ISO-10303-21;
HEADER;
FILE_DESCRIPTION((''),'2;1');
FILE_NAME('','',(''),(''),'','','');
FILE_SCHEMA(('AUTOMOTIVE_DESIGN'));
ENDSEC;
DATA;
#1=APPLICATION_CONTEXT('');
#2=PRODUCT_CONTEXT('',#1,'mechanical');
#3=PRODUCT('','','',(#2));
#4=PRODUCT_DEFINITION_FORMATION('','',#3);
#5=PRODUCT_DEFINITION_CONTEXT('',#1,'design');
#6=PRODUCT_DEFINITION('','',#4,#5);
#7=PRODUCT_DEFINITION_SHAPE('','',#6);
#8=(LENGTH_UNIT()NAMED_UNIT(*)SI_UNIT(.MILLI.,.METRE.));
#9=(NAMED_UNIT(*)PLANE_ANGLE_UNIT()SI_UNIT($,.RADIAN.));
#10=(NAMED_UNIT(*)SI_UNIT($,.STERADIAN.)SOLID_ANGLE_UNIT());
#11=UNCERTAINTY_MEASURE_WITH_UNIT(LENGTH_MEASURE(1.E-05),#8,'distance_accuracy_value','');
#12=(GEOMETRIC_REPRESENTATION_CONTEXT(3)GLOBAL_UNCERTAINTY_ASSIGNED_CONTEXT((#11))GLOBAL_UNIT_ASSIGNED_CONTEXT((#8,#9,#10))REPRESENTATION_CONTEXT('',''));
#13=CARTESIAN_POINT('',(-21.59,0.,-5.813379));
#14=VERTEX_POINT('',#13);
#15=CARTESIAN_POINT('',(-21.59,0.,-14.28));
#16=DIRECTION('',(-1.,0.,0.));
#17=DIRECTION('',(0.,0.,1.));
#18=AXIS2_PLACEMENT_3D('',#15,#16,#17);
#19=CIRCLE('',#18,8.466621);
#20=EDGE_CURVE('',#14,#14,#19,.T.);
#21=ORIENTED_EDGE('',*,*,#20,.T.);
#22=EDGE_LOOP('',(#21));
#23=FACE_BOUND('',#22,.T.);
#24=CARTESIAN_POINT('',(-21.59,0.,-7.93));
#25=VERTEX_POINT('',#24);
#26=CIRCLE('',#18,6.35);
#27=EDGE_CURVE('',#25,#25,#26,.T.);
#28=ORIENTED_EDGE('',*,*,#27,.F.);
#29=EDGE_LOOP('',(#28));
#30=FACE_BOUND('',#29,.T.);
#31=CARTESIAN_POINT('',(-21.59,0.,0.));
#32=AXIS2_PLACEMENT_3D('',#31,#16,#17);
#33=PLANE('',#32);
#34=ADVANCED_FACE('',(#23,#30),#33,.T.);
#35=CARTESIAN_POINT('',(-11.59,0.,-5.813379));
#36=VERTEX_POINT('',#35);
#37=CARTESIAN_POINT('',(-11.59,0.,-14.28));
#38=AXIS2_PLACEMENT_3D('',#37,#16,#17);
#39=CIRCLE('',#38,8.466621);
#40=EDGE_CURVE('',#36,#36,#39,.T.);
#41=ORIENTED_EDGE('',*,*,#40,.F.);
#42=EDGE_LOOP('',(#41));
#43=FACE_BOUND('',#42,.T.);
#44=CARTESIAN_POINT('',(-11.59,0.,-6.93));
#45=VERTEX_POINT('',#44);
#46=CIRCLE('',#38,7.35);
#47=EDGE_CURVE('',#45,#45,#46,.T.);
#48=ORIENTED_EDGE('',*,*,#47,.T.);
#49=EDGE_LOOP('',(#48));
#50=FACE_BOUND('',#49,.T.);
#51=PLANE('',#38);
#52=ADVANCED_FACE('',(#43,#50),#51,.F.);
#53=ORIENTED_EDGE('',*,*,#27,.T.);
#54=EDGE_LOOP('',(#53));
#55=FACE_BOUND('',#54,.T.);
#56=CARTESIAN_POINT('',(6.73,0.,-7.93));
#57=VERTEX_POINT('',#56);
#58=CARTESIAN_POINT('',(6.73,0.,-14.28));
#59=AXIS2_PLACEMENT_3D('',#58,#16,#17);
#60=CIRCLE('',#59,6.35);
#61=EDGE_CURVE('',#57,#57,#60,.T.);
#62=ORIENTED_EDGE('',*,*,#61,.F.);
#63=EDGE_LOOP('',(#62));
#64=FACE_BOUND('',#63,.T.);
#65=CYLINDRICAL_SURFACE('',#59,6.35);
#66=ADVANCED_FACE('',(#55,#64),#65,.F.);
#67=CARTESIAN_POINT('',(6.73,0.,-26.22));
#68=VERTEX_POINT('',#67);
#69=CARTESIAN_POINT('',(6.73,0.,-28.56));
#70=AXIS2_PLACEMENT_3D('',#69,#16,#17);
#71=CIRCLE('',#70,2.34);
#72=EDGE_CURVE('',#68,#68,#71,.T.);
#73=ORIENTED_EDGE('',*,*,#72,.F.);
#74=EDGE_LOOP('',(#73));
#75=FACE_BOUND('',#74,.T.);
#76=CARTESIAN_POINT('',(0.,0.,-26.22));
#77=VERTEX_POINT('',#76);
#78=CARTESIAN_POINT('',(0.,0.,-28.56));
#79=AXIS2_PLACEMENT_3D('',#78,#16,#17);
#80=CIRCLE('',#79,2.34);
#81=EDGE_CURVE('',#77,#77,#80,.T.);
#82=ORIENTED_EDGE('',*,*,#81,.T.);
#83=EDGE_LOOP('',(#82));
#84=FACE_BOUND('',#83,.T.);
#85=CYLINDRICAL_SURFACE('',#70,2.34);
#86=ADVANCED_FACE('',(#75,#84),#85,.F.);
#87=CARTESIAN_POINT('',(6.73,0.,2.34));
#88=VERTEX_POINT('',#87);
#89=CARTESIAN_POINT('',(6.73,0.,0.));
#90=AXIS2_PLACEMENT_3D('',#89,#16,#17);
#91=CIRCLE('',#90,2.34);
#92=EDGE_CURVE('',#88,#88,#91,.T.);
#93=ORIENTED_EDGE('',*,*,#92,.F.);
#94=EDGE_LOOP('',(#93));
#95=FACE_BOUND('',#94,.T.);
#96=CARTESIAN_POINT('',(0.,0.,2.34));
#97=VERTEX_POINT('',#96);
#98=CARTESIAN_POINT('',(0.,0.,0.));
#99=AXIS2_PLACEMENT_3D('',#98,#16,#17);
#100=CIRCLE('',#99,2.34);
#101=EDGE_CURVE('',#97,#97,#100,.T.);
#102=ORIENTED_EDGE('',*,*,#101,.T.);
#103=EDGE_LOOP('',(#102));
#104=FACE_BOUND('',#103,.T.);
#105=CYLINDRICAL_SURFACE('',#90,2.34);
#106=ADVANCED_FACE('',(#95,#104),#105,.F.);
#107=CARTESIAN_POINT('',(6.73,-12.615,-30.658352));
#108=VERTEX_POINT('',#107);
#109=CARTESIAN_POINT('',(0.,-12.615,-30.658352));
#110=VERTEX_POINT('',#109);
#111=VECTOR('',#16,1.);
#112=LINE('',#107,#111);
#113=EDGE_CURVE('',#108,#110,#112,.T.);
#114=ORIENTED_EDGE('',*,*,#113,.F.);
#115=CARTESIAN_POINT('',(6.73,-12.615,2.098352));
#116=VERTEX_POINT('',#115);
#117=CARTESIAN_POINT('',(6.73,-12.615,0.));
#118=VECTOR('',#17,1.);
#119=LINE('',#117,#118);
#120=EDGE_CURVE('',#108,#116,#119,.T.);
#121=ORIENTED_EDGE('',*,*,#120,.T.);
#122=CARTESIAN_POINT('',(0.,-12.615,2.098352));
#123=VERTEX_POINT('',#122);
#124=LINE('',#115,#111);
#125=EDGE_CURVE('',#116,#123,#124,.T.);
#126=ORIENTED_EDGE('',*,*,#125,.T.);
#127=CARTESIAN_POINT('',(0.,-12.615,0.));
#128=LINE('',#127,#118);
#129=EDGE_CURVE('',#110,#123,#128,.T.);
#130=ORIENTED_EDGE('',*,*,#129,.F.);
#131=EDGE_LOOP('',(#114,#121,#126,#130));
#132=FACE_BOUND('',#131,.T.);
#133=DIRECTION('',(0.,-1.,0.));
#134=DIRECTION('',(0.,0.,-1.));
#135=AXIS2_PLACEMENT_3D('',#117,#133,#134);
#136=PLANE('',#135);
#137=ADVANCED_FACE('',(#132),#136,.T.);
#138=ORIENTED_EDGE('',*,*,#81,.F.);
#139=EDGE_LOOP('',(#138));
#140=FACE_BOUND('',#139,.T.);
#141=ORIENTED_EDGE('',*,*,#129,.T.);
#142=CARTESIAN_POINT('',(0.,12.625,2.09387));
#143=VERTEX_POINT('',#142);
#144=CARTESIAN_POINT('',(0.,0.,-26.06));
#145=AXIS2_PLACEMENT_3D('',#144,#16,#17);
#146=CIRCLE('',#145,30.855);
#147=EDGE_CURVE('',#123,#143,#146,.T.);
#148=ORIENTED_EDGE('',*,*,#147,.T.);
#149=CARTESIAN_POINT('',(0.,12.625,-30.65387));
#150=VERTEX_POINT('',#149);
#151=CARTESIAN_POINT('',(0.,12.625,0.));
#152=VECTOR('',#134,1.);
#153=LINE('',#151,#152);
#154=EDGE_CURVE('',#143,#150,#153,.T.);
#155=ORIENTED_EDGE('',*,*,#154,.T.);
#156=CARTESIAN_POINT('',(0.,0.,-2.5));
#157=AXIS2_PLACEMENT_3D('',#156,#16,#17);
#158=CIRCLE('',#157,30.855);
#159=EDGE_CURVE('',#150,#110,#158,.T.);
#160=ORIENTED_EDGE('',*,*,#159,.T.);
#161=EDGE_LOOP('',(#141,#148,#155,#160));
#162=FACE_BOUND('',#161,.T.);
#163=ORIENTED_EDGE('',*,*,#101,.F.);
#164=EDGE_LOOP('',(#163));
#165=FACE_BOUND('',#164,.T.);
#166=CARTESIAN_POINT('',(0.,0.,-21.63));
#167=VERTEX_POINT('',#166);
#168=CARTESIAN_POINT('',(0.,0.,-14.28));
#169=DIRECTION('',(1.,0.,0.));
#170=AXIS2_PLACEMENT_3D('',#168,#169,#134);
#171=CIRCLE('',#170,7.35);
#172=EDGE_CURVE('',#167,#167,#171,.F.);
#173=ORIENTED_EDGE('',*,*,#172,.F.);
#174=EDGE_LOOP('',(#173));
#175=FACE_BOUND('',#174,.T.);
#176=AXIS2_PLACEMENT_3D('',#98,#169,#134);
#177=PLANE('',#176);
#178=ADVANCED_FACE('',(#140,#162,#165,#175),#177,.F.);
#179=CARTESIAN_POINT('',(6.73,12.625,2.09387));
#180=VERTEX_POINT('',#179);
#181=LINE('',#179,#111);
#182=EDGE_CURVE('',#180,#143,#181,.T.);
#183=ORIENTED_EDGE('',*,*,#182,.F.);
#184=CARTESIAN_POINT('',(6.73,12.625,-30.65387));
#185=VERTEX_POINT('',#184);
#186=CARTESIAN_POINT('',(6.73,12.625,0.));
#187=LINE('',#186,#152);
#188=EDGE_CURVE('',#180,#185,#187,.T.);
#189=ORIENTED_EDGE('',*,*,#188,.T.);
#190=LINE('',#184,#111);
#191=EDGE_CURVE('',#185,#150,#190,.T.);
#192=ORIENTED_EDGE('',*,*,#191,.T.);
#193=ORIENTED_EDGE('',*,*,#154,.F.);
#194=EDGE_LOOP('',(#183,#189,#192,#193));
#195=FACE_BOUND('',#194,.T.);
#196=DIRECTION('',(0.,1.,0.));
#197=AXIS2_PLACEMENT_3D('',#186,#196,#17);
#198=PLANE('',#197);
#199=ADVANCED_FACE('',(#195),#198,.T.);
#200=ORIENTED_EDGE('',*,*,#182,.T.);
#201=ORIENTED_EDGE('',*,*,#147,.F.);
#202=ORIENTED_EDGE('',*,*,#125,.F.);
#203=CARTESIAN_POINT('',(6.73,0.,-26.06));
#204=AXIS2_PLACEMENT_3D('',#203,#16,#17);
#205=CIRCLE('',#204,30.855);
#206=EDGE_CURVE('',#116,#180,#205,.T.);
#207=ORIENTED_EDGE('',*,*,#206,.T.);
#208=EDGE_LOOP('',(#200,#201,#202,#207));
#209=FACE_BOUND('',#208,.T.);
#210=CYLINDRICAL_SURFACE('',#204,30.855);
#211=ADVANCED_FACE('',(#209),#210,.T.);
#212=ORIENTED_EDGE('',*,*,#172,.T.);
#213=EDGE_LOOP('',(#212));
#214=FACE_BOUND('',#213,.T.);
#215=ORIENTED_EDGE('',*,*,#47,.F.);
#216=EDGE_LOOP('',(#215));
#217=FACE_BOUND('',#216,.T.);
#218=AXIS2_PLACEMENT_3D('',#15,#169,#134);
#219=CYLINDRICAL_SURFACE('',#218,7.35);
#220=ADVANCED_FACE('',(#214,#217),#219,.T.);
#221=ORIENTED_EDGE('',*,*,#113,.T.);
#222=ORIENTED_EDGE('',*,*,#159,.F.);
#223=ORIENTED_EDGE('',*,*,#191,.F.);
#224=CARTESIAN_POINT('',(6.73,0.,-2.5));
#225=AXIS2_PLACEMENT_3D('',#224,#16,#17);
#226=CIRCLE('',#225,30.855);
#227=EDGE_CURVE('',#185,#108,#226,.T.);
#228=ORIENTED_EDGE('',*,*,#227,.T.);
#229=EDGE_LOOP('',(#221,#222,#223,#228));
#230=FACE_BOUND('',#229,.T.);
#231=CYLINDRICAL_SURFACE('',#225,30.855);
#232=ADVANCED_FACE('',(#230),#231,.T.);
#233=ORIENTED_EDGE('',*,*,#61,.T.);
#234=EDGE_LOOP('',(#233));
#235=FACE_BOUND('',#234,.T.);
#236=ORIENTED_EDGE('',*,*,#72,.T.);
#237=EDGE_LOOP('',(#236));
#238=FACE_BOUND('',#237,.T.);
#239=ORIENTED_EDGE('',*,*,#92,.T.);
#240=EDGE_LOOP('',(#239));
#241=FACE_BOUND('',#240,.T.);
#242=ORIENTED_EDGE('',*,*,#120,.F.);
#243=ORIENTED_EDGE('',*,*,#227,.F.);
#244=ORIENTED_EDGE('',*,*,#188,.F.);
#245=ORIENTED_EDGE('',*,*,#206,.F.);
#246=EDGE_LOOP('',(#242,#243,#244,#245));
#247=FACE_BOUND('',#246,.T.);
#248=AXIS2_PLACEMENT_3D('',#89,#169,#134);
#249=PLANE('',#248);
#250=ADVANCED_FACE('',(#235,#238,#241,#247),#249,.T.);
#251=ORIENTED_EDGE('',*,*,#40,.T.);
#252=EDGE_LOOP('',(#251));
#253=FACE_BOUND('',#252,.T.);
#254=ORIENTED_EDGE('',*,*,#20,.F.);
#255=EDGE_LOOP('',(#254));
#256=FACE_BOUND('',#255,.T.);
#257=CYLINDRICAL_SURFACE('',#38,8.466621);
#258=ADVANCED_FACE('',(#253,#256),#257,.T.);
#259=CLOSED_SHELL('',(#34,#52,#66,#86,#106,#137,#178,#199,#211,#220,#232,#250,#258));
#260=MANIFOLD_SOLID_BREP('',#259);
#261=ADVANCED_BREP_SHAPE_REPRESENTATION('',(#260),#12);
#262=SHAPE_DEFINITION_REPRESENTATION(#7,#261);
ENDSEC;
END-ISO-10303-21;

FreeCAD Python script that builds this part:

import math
import FreeCAD as App
import Part
import Sketcher
from FreeCAD import Vector
Q = App.Units.Quantity


def add_polygon(sketch, points):
    """Adds a closed chain of lines whose ends are joined by coincident constraints."""
    first, n = sketch.GeometryCount, len(points)
    for a, b in zip(points, points[1:] + points[:1]):
        sketch.addGeometry(Part.LineSegment(App.Vector(*a, 0), App.Vector(*b, 0)), False)
    for i in range(n):
        sketch.addConstraint(Sketcher.Constraint("Coincident", first + i, 2, first + (i + 1) % n, 1))

doc = App.newDocument("Part")
params = doc.addObject("Spreadsheet::Sheet", "Params")
for row, (alias, value) in enumerate([
    ("sketch1_diameter", "5 mm"),
    ("sketch1_width", "25.24 mm"),
    ("sketch1_height", "38.15 mm"),
    ("pad1_length", "6.73 mm"),
    ("pocket1_length", "6.73 mm"),
    ("sketch3_diameter", "14.7 mm"),
    ("pad2_length", "21.59 mm"),
    ("sketch4_diameter", "12.7 mm"),
    ("sketch5_diameter", "14.7 mm"),
    ("pad3_length", "10 mm"),
    ("sketch6_diameter", "5 mm"),
    ("sketch6_diameter2", "4.68 mm"),
    ("pad4_length", "6.73 mm"),
], start=1):
    params.set(f"A{row}", alias)
    params.set(f"B{row}", "=" + value)
    params.setAlias(f"B{row}", alias)

body = doc.addObject("PartDesign::Body", "Body")

# Sketch on YZ plane
sketch1 = body.newObject("Sketcher::SketchObject", "Sketch")
sketch1.AttachmentSupport = (doc.getObject("YZ_Plane"), [""])
sketch1.MapMode = "FlatFace"
add_polygon(sketch1, [(-12.6, 4.8), (-12.6, -33.4), (12.6, -33.4), (12.6, 4.8)])  # lines 0-3
sketch1.addGeometry(Part.Circle(Vector(0, 0, 0), Vector(0, 0, 1), 2.5), False)  # 4
sketch1.addGeometry(Part.Circle(Vector(0, -28.6, 0), Vector(0, 0, 1), 2.5), False)  # 5
sketch1.addConstraint([
    Sketcher.Constraint("Vertical", 0),
    Sketcher.Constraint("Horizontal", 1),
    Sketcher.Constraint("Vertical", 2),
    Sketcher.Constraint("Horizontal", 3),
    Sketcher.Constraint("Coincident", 4, 3, -1, 1),
    Sketcher.Constraint("Equal", 4, 5),
    Sketcher.Constraint("PointOnObject", 5, 3, -2),
    Sketcher.Constraint("Diameter", 4, Q("5 mm")),
    Sketcher.Constraint("DistanceX", 1, 1, 1, 2, Q("25.24 mm")),
    Sketcher.Constraint("DistanceY", 0, 2, 0, 1, Q("38.15 mm")),
    Sketcher.Constraint("DistanceY", 5, 3, -1, 1, Q("28.56 mm")),
    Sketcher.Constraint("DistanceX", 0, 2, -1, 1, Q("12.615 mm")),
    Sketcher.Constraint("DistanceY", 0, 2, -1, 1, Q("33.355 mm")),
])
sketch1.setExpression("Constraints[11]", "Params.sketch1_diameter")
sketch1.setExpression("Constraints[12]", "Params.sketch1_width")
sketch1.setExpression("Constraints[13]", "Params.sketch1_height")
pad1 = body.newObject("PartDesign::Pad", "Pad")
pad1.Profile = sketch1
pad1.setExpression("Length", "Params.pad1_length")

# Sketch on YZ plane
sketch2 = body.newObject("Sketcher::SketchObject", "Sketch001")
sketch2.AttachmentSupport = (doc.getObject("YZ_Plane"), [""])
sketch2.MapMode = "FlatFace"
sketch2.addGeometry([
    Part.LineSegment(Vector(-12.6, 4.8, 0), Vector(0, 4.8, 0)),  # 0
    Part.ArcOfCircle(Part.Circle(Vector(0, -26.1, 0), Vector(0, 0, 1), 30.9), math.radians(90), math.radians(114)),  # 1
    Part.LineSegment(Vector(-12.6, 2.1, 0), Vector(-12.6, 4.8, 0)),  # 2
    Part.LineSegment(Vector(12.6, 4.8, 0), Vector(12.6, 2.1, 0)),  # 3
    Part.ArcOfCircle(Part.Circle(Vector(0, -26.1, 0), Vector(0, 0, 1), 30.9), math.radians(66), math.radians(90)),  # 4
    Part.LineSegment(Vector(0, 4.8, 0), Vector(12.6, 4.8, 0)),  # 5
    Part.ArcOfCircle(Part.Circle(Vector(0, -2.5, 0), Vector(0, 0, 1), 30.9), math.radians(-90), math.radians(-66)),  # 6
    Part.LineSegment(Vector(12.6, -30.7, 0), Vector(12.6, -33.4, 0)),  # 7
    Part.LineSegment(Vector(12.6, -33.4, 0), Vector(0, -33.4, 0)),  # 8
    Part.ArcOfCircle(Part.Circle(Vector(0, -2.5, 0), Vector(0, 0, 1), 30.9), math.radians(-114), math.radians(-90)),  # 9
    Part.LineSegment(Vector(0, -33.4, 0), Vector(-12.6, -33.4, 0)),  # 10
    Part.LineSegment(Vector(-12.6, -33.4, 0), Vector(-12.6, -30.7, 0)),  # 11
], False)
sketch2.addConstraint([
    Sketcher.Constraint("Tangent", 0, 2, 1, 1),
    Sketcher.Constraint("Coincident", 1, 2, 2, 1),
    Sketcher.Constraint("Coincident", 2, 2, 0, 1),
    Sketcher.Constraint("Coincident", 3, 2, 4, 1),
    Sketcher.Constraint("Tangent", 4, 2, 5, 1),
    Sketcher.Constraint("Coincident", 5, 2, 3, 1),
    Sketcher.Constraint("Coincident", 6, 2, 7, 1),
    Sketcher.Constraint("Coincident", 7, 2, 8, 1),
    Sketcher.Constraint("Tangent", 8, 2, 6, 1),
    Sketcher.Constraint("Tangent", 9, 2, 10, 1),
    Sketcher.Constraint("Coincident", 10, 2, 11, 1),
    Sketcher.Constraint("Coincident", 11, 2, 9, 1),
    Sketcher.Constraint("Horizontal", 0),
    Sketcher.Constraint("Vertical", 2),
    Sketcher.Constraint("Vertical", 3),
    Sketcher.Constraint("Horizontal", 5),
    Sketcher.Constraint("Vertical", 7),
    Sketcher.Constraint("Horizontal", 8),
    Sketcher.Constraint("Horizontal", 10),
    Sketcher.Constraint("Vertical", 11),
    Sketcher.Constraint("Coincident", 4, 3, 1, 3),
    Sketcher.Constraint("Coincident", 9, 3, 6, 3),
    Sketcher.Constraint("Equal", 1, 4),
    Sketcher.Constraint("Equal", 4, 6),
    Sketcher.Constraint("Equal", 6, 9),
    Sketcher.Constraint("PointOnObject", 1, 3, -2),
    Sketcher.Constraint("PointOnObject", 6, 3, -2),
    Sketcher.Constraint("Vertical", 5, 2, 6, 2),
    Sketcher.Constraint("Vertical", 2, 2, 10, 2),
    Sketcher.Constraint("Radius", 1, Q("30.855 mm")),
    Sketcher.Constraint("DistanceY", 6, 3, -1, 1, Q("2.5 mm")),
    Sketcher.Constraint("DistanceX", 0, 1, 0, 2, Q("12.615 mm")),
    Sketcher.Constraint("DistanceX", 5, 1, 5, 2, Q("12.625 mm")),
    Sketcher.Constraint("DistanceY", 1, 3, -1, 1, Q("26.06 mm")),
])
pocket1 = body.newObject("PartDesign::Pocket", "Pocket")
pocket1.Profile = sketch2
pocket1.setExpression("Length", "Params.pocket1_length")
pocket1.Reversed = True

# Sketch on YZ plane
sketch3 = body.newObject("Sketcher::SketchObject", "Sketch002")
sketch3.AttachmentSupport = (doc.getObject("YZ_Plane"), [""])
sketch3.MapMode = "FlatFace"
sketch3.addGeometry(Part.Circle(Vector(0, -14, 0), Vector(0, 0, 1), 7), False)
sketch3.addConstraint([
    Sketcher.Constraint("PointOnObject", 0, 3, -2),
    Sketcher.Constraint("Diameter", 0, Q("14.7 mm")),
    Sketcher.Constraint("DistanceY", 0, 3, -1, 1, Q("14.28 mm")),
])
sketch3.setExpression("Constraints[1]", "Params.sketch3_diameter")
pad2 = body.newObject("PartDesign::Pad", "Pad001")
pad2.Profile = sketch3
pad2.setExpression("Length", "Params.pad2_length")
pad2.Reversed = True

# Sketch on YZ plane
sketch4 = body.newObject("Sketcher::SketchObject", "Sketch003")
sketch4.AttachmentSupport = (doc.getObject("YZ_Plane"), [""])
sketch4.MapMode = "FlatFace"
sketch4.AttachmentOffset = App.Placement(Vector(0, 0, -21.59), App.Rotation())
sketch4.addGeometry(Part.Circle(Vector(0, -14, 0), Vector(0, 0, 1), 6), False)
sketch4.addConstraint([
    Sketcher.Constraint("PointOnObject", 0, 3, -2),
    Sketcher.Constraint("Diameter", 0, Q("12.7 mm")),
    Sketcher.Constraint("DistanceY", 0, 3, -1, 1, Q("14.28 mm")),
])
sketch4.setExpression("Constraints[1]", "Params.sketch4_diameter")
pocket2 = body.newObject("PartDesign::Pocket", "Pocket001")
pocket2.Profile = sketch4
pocket2.Type = "ThroughAll"
pocket2.Reversed = True

# Sketch on YZ plane
sketch5 = body.newObject("Sketcher::SketchObject", "Sketch004")
sketch5.AttachmentSupport = (doc.getObject("YZ_Plane"), [""])
sketch5.MapMode = "FlatFace"
sketch5.AttachmentOffset = App.Placement(Vector(0, 0, -11.59), App.Rotation())
sketch5.addGeometry([
    Part.Circle(Vector(0, -14, 0), Vector(0, 0, 1), 8),
    Part.Circle(Vector(0, -14, 0), Vector(0, 0, 1), 7),
], False)
sketch5.addConstraint([
    Sketcher.Constraint("Coincident", 1, 3, 0, 3),
    Sketcher.Constraint("PointOnObject", 0, 3, -2),
    Sketcher.Constraint("Diameter", 1, Q("14.7 mm")),
    Sketcher.Constraint("DistanceY", 0, 3, -1, 1, Q("14.28 mm")),
    Sketcher.Constraint("Diameter", 0, Q("16.933242 mm")),
])
sketch5.setExpression("Constraints[2]", "Params.sketch5_diameter")
pad3 = body.newObject("PartDesign::Pad", "Pad002")
pad3.Profile = sketch5
pad3.setExpression("Length", "Params.pad3_length")
pad3.Reversed = True

# Sketch on YZ plane
sketch6 = body.newObject("Sketcher::SketchObject", "Sketch005")
sketch6.AttachmentSupport = (doc.getObject("YZ_Plane"), [""])
sketch6.MapMode = "FlatFace"
sketch6.addGeometry([
    Part.Circle(Vector(0, -28.6, 0), Vector(0, 0, 1), 2.5),
    Part.Circle(Vector(0, -28.6, 0), Vector(0, 0, 1), 2.3),
    Part.Circle(Vector(0, 0, 0), Vector(0, 0, 1), 2.5),
    Part.Circle(Vector(0, 0, 0), Vector(0, 0, 1), 2.3),
], False)
sketch6.addConstraint([
    Sketcher.Constraint("Coincident", 2, 3, -1, 1),
    Sketcher.Constraint("Coincident", 3, 3, -1, 1),
    Sketcher.Constraint("Coincident", 1, 3, 0, 3),
    Sketcher.Constraint("Equal", 0, 2),
    Sketcher.Constraint("Equal", 1, 3),
    Sketcher.Constraint("PointOnObject", 0, 3, -2),
    Sketcher.Constraint("Diameter", 0, Q("5 mm")),
    Sketcher.Constraint("Diameter", 1, Q("4.68 mm")),
    Sketcher.Constraint("DistanceY", 0, 3, -1, 1, Q("28.56 mm")),
])
sketch6.setExpression("Constraints[6]", "Params.sketch6_diameter")
sketch6.setExpression("Constraints[7]", "Params.sketch6_diameter2")
pad4 = body.newObject("PartDesign::Pad", "Pad003")
pad4.Profile = sketch6
pad4.setExpression("Length", "Params.pad4_length")

doc.recompute()
